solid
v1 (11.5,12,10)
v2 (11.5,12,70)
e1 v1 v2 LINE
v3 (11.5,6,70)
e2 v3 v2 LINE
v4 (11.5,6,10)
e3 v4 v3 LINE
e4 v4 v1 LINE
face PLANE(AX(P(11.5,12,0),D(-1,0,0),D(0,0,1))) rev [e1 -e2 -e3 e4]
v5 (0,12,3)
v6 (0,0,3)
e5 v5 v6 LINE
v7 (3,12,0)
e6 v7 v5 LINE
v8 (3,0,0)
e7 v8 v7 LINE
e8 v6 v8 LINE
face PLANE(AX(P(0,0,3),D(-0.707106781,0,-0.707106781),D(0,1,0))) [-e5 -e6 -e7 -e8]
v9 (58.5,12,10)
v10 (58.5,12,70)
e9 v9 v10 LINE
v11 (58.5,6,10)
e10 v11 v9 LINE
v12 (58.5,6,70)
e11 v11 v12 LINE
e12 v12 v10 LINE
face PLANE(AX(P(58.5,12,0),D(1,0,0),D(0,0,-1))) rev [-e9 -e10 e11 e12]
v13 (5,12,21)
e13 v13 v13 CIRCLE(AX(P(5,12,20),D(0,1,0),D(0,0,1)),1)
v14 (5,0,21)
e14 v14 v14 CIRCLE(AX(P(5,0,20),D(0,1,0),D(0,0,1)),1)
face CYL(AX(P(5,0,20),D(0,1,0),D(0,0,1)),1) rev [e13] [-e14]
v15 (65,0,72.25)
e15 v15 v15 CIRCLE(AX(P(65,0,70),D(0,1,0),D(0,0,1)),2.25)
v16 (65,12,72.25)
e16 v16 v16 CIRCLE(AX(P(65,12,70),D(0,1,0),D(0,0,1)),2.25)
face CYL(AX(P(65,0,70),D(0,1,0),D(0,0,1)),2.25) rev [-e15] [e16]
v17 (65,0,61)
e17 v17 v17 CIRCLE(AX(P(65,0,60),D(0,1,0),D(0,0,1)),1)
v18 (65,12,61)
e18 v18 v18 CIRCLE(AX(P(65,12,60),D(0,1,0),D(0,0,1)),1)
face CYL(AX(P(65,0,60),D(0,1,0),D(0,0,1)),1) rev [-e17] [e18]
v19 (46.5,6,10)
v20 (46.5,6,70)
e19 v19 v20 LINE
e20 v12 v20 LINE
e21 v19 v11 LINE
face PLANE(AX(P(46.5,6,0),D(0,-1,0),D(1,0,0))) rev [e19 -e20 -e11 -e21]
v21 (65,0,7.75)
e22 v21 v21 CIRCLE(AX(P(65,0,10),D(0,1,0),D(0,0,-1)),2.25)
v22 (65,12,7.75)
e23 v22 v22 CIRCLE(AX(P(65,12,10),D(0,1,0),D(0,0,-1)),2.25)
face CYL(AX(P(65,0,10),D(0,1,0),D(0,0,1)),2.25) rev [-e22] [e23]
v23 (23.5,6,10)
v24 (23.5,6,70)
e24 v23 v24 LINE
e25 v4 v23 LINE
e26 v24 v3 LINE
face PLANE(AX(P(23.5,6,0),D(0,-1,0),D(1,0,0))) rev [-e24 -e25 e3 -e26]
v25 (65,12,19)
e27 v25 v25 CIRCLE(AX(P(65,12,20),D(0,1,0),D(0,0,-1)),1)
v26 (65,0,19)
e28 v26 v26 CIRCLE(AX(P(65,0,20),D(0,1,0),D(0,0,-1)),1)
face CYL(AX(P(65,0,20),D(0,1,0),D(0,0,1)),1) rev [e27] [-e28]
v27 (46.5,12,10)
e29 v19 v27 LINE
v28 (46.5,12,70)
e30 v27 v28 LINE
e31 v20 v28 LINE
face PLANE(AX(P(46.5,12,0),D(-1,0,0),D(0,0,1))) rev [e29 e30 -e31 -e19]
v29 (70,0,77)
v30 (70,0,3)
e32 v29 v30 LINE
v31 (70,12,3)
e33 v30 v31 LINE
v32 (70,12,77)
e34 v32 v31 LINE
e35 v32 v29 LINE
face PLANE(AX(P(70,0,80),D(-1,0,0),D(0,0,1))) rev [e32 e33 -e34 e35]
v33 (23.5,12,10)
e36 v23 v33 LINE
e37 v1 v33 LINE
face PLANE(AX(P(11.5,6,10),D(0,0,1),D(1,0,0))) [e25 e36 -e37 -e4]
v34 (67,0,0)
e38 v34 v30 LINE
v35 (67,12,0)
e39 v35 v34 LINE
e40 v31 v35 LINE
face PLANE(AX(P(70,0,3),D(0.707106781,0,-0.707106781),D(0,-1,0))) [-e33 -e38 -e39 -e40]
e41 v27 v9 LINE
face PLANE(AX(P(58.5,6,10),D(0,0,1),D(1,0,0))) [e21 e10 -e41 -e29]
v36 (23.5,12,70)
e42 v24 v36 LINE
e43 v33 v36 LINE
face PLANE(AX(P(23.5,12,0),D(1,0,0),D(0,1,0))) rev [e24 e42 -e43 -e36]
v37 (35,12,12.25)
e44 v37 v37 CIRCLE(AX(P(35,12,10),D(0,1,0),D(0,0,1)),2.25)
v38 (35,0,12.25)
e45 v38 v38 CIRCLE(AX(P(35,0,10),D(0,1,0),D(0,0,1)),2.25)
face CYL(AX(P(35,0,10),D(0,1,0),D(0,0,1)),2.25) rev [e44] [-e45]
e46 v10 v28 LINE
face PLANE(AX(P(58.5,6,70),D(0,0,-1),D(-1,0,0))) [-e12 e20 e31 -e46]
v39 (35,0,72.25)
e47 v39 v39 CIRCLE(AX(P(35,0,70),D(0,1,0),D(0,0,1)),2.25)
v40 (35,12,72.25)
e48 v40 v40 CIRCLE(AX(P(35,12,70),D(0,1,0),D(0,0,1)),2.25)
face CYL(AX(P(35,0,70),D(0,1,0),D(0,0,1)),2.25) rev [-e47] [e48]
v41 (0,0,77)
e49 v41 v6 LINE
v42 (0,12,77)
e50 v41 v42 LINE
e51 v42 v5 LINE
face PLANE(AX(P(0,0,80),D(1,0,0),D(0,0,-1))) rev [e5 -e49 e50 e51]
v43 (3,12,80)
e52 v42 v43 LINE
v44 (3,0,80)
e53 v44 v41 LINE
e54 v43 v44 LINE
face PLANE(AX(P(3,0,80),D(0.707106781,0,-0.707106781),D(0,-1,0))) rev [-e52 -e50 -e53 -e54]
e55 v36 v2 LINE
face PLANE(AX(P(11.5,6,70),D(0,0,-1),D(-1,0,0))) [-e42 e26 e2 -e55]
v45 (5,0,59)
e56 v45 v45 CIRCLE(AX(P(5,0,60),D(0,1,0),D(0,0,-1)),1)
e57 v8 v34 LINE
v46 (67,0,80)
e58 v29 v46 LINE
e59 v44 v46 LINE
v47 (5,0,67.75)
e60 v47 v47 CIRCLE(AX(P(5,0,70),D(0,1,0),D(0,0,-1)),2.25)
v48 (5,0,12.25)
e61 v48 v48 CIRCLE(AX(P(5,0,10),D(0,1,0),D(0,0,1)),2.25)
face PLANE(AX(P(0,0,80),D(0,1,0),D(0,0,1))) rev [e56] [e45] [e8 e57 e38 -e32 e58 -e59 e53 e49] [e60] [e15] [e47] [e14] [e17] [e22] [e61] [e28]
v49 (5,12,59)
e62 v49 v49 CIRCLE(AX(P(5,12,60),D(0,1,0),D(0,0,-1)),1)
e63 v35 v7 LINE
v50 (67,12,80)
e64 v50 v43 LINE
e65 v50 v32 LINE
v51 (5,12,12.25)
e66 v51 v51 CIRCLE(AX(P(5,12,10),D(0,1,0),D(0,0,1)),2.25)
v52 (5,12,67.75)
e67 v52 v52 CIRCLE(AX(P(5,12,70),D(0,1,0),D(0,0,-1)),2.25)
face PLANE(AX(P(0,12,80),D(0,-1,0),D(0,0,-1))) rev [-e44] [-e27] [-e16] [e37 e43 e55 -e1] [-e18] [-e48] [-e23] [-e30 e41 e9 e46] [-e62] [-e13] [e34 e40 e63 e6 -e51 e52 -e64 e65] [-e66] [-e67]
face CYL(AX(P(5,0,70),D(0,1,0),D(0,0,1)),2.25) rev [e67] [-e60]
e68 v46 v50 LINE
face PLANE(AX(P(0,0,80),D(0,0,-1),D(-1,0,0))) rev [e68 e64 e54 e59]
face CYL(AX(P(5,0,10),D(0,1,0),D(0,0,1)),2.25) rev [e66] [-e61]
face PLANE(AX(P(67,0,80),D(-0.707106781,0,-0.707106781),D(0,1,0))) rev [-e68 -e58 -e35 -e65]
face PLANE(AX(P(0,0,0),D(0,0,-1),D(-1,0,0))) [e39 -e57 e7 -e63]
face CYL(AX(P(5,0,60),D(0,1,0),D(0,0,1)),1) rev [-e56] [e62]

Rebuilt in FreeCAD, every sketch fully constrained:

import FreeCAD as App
import Part
import Sketcher


def edges_at(feature, points):
    """Names of the edges that pass closest to the given points."""
    edges = feature.Shape.Edges
    near = lambda p: min(range(len(edges)), key=lambda i: edges[i].distToShape(Part.Vertex(*p))[0])
    return sorted({f"Edge{near(p) + 1}" for p in points})


def add_polygon(sketch, points):
    """Adds a closed chain of lines whose ends are joined by coincident constraints."""
    first, n = sketch.GeometryCount, len(points)
    for a, b in zip(points, points[1:] + points[:1]):
        sketch.addGeometry(Part.LineSegment(App.Vector(*a, 0), App.Vector(*b, 0)), False)
    for i in range(n):
        sketch.addConstraint(Sketcher.Constraint("Coincident", first + i, 2, first + (i + 1) % n, 1))

doc = App.newDocument("Part")
body = doc.addObject("PartDesign::Body", "Body")

# Sketch on XY plane
sketch1 = body.newObject("Sketcher::SketchObject", "Sketch")
sketch1.AttachmentSupport = (doc.getObject("XY_Plane"), [""])
sketch1.MapMode = "FlatFace"
add_polygon(sketch1, [(0, 12), (0, 0), (70, 0), (70, 12)])  # lines 0-3
sketch1.addConstraint([
    Sketcher.Constraint("Vertical", 0),
    Sketcher.Constraint("Horizontal", 1),
    Sketcher.Constraint("Vertical", 2),
    Sketcher.Constraint("Horizontal", 3),
    Sketcher.Constraint("Coincident", 0, 2, -1, 1),
    Sketcher.Constraint("DistanceX", 1, 1, 1, 2, 70.0),
    Sketcher.Constraint("DistanceY", 0, 2, 0, 1, 12.0),
])
pad1 = body.newObject("PartDesign::Pad", "Pad")
pad1.Profile = sketch1
pad1.Length = 80

# Sketch on XY plane
sketch2 = body.newObject("Sketcher::SketchObject", "Sketch001")
sketch2.AttachmentSupport = (doc.getObject("XY_Plane"), [""])
sketch2.MapMode = "FlatFace"
sketch2.AttachmentOffset = App.Placement(App.Vector(0, 0, 80), App.Rotation())
add_polygon(sketch2, [(46.5, 12), (46.5, 6), (58.5, 6), (58.5, 12)])  # lines 0-3
add_polygon(sketch2, [(11.5, 12), (11.5, 6), (23.5, 6), (23.5, 12)])  # lines 4-7
sketch2.addConstraint([
    Sketcher.Constraint("Vertical", 0),
    Sketcher.Constraint("Horizontal", 1),
    Sketcher.Constraint("Vertical", 2),
    Sketcher.Constraint("Horizontal", 3),
    Sketcher.Constraint("Vertical", 4),
    Sketcher.Constraint("Horizontal", 5),
    Sketcher.Constraint("Vertical", 6),
    Sketcher.Constraint("Horizontal", 7),
    Sketcher.Constraint("Horizontal", 1, 2, 4, 2),
    Sketcher.Constraint("Horizontal", 3, 2, 6, 2),
    Sketcher.Constraint("Equal", 3, 5),
    Sketcher.Constraint("DistanceX", 1, 1, 1, 2, 12.0),
    Sketcher.Constraint("DistanceY", 0, 2, 0, 1, 6.0),
    Sketcher.Constraint("DistanceY", -1, 1, 0, 2, 6.0),
    Sketcher.Constraint("DistanceX", 4, 2, 0, 2, 35.0),
    Sketcher.Constraint("DistanceX", -1, 1, 0, 2, 46.5),
])
pocket1 = body.newObject("PartDesign::Pocket", "Pocket")
pocket1.Profile = sketch2
pocket1.Type = "ThroughAll"

# Sketch on XZ plane
sketch3 = body.newObject("Sketcher::SketchObject", "Sketch002")
sketch3.AttachmentSupport = (doc.getObject("XZ_Plane"), [""])
sketch3.MapMode = "FlatFace"
sketch3.AttachmentOffset = App.Placement(App.Vector(0, 0, -12), App.Rotation())
sketch3.addGeometry([
    Part.Circle(App.Vector(5, 10, 0), App.Vector(0, 0, 1), 2.25),  # 0
    Part.Circle(App.Vector(65, 70, 0), App.Vector(0, 0, 1), 2.25),  # 1
    Part.Circle(App.Vector(65, 10, 0), App.Vector(0, 0, 1), 2.25),  # 2
    Part.Circle(App.Vector(5, 70, 0), App.Vector(0, 0, 1), 2.25),  # 3
    Part.Circle(App.Vector(35, 10, 0), App.Vector(0, 0, 1), 2.25),  # 4
    Part.Circle(App.Vector(35, 70, 0), App.Vector(0, 0, 1), 2.25),  # 5
], False)
sketch3.addConstraint([
    Sketcher.Constraint("Equal", 0, 1),
    Sketcher.Constraint("Equal", 1, 2),
    Sketcher.Constraint("Equal", 2, 3),
    Sketcher.Constraint("Equal", 3, 4),
    Sketcher.Constraint("Equal", 4, 5),
    Sketcher.Constraint("Horizontal", 0, 3, 2, 3),
    Sketcher.Constraint("Horizontal", 1, 3, 3, 3),
    Sketcher.Constraint("Horizontal", 2, 3, 4, 3),
    Sketcher.Constraint("Horizontal", 3, 3, 5, 3),
    Sketcher.Constraint("Vertical", 1, 3, 2, 3),
    Sketcher.Constraint("Vertical", 0, 3, 3, 3),
    Sketcher.Constraint("Vertical", 4, 3, 5, 3),
    Sketcher.Constraint("Diameter", 0, 4.5),
    Sketcher.Constraint("DistanceX", -1, 1, 0, 3, 5.0),
    Sketcher.Constraint("DistanceY", -1, 1, 0, 3, 10.0),
    Sketcher.Constraint("DistanceX", -1, 1, 1, 3, 65.0),
    Sketcher.Constraint("DistanceY", -1, 1, 1, 3, 70.0),
    Sketcher.Constraint("DistanceX", -1, 1, 4, 3, 35.0),
])
pocket2 = body.newObject("PartDesign::Pocket", "Pocket001")
pocket2.Profile = sketch3
pocket2.Type = "ThroughAll"
pocket2.Reversed = True

# Sketch on XZ plane
sketch4 = body.newObject("Sketcher::SketchObject", "Sketch003")
sketch4.AttachmentSupport = (doc.getObject("XZ_Plane"), [""])
sketch4.MapMode = "FlatFace"
sketch4.AttachmentOffset = App.Placement(App.Vector(0, 0, -12), App.Rotation())
add_polygon(sketch4, [(11.5, 70), (11.5, 80), (23.5, 80), (23.5, 70)])  # lines 0-3
add_polygon(sketch4, [(46.5, 70), (46.5, 80), (58.5, 80), (58.5, 70)])  # lines 4-7
add_polygon(sketch4, [(46.5, 0), (46.5, 10), (58.5, 10), (58.5, 0)])  # lines 8-11
add_polygon(sketch4, [(11.5, 0), (11.5, 10), (23.5, 10), (23.5, 0)])  # lines 12-15
sketch4.addConstraint([
    Sketcher.Constraint("Vertical", 0),
    Sketcher.Constraint("Horizontal", 1),
    Sketcher.Constraint("Vertical", 2),
    Sketcher.Constraint("Horizontal", 3),
    Sketcher.Constraint("Vertical", 4),
    Sketcher.Constraint("Horizontal", 5),
    Sketcher.Constraint("Vertical", 6),
    Sketcher.Constraint("Horizontal", 7),
    Sketcher.Constraint("Vertical", 8),
    Sketcher.Constraint("Horizontal", 9),
    Sketcher.Constraint("Vertical", 10),
    Sketcher.Constraint("Horizontal", 11),
    Sketcher.Constraint("Vertical", 12),
    Sketcher.Constraint("Horizontal", 13),
    Sketcher.Constraint("Vertical", 14),
    Sketcher.Constraint("Horizontal", 15),
    Sketcher.Constraint("PointOnObject", 10, 2, -1),
    Sketcher.Constraint("PointOnObject", 14, 2, -1),
    Sketcher.Constraint("Horizontal", 1, 2, 4, 2),
    Sketcher.Constraint("Horizontal", 3, 2, 6, 2),
    Sketcher.Constraint("Horizontal", 9, 2, 12, 2),
    Sketcher.Constraint("Vertical", 7, 2, 8, 2),
    Sketcher.Constraint("Vertical", 6, 2, 9, 2),
    Sketcher.Constraint("Vertical", 3, 2, 12, 2),
    Sketcher.Constraint("Vertical", 2, 2, 13, 2),
    Sketcher.Constraint("Equal", 3, 5),
    Sketcher.Constraint("Equal", 6, 8),
    Sketcher.Constraint("DistanceX", 1, 1, 1, 2, 12.0),
    Sketcher.Constraint("DistanceY", 0, 1, 0, 2, 10.0),
    Sketcher.Constraint("DistanceY", -1, 1, 0, 2, 80.0),
    Sketcher.Constraint("DistanceX", 1, 2, 4, 2, 23.0),
    Sketcher.Constraint("DistanceX", -1, 1, 0, 2, 11.5),
])
pad2 = body.newObject("PartDesign::Pad", "Pad001")
pad2.Profile = sketch4
pad2.Length = 6
doc.recompute()

chamfer = body.newObject("PartDesign::Chamfer", "Chamfer")
chamfer.Base = (pad2, edges_at(pad2, [
    (70, 6, 80),
    (0, 6, 80),
    (70, 6, 0),
    (0, 6, 0),
]))
chamfer.Size = 3

# Sketch on XZ plane
sketch5 = body.newObject("Sketcher::SketchObject", "Sketch004")
sketch5.AttachmentSupport = (doc.getObject("XZ_Plane"), [""])
sketch5.MapMode = "FlatFace"
sketch5.AttachmentOffset = App.Placement(App.Vector(0, 0, -12), App.Rotation())
sketch5.addGeometry([
    Part.Circle(App.Vector(5, 20, 0), App.Vector(0, 0, 1), 1),
    Part.Circle(App.Vector(5, 60, 0), App.Vector(0, 0, 1), 1),
    Part.Circle(App.Vector(65, 60, 0), App.Vector(0, 0, 1), 1),
    Part.Circle(App.Vector(65, 20, 0), App.Vector(0, 0, 1), 1),
], False)
sketch5.addConstraint([
    Sketcher.Constraint("Equal", 0, 1),
    Sketcher.Constraint("Equal", 1, 2),
    Sketcher.Constraint("Equal", 2, 3),
    Sketcher.Constraint("Horizontal", 1, 3, 2, 3),
    Sketcher.Constraint("Horizontal", 0, 3, 3, 3),
    Sketcher.Constraint("Vertical", 0, 3, 1, 3),
    Sketcher.Constraint("Vertical", 2, 3, 3, 3),
    Sketcher.Constraint("Diameter", 0, 2.0),
    Sketcher.Constraint("DistanceX", -1, 1, 0, 3, 5.0),
    Sketcher.Constraint("DistanceY", -1, 1, 0, 3, 20.0),
    Sketcher.Constraint("DistanceY", -1, 1, 1, 3, 60.0),
    Sketcher.Constraint("DistanceX", -1, 1, 2, 3, 65.0),
])
pocket3 = body.newObject("PartDesign::Pocket", "Pocket002")
pocket3.Profile = sketch5
pocket3.Length = 12
pocket3.Reversed = True

doc.recompute()
